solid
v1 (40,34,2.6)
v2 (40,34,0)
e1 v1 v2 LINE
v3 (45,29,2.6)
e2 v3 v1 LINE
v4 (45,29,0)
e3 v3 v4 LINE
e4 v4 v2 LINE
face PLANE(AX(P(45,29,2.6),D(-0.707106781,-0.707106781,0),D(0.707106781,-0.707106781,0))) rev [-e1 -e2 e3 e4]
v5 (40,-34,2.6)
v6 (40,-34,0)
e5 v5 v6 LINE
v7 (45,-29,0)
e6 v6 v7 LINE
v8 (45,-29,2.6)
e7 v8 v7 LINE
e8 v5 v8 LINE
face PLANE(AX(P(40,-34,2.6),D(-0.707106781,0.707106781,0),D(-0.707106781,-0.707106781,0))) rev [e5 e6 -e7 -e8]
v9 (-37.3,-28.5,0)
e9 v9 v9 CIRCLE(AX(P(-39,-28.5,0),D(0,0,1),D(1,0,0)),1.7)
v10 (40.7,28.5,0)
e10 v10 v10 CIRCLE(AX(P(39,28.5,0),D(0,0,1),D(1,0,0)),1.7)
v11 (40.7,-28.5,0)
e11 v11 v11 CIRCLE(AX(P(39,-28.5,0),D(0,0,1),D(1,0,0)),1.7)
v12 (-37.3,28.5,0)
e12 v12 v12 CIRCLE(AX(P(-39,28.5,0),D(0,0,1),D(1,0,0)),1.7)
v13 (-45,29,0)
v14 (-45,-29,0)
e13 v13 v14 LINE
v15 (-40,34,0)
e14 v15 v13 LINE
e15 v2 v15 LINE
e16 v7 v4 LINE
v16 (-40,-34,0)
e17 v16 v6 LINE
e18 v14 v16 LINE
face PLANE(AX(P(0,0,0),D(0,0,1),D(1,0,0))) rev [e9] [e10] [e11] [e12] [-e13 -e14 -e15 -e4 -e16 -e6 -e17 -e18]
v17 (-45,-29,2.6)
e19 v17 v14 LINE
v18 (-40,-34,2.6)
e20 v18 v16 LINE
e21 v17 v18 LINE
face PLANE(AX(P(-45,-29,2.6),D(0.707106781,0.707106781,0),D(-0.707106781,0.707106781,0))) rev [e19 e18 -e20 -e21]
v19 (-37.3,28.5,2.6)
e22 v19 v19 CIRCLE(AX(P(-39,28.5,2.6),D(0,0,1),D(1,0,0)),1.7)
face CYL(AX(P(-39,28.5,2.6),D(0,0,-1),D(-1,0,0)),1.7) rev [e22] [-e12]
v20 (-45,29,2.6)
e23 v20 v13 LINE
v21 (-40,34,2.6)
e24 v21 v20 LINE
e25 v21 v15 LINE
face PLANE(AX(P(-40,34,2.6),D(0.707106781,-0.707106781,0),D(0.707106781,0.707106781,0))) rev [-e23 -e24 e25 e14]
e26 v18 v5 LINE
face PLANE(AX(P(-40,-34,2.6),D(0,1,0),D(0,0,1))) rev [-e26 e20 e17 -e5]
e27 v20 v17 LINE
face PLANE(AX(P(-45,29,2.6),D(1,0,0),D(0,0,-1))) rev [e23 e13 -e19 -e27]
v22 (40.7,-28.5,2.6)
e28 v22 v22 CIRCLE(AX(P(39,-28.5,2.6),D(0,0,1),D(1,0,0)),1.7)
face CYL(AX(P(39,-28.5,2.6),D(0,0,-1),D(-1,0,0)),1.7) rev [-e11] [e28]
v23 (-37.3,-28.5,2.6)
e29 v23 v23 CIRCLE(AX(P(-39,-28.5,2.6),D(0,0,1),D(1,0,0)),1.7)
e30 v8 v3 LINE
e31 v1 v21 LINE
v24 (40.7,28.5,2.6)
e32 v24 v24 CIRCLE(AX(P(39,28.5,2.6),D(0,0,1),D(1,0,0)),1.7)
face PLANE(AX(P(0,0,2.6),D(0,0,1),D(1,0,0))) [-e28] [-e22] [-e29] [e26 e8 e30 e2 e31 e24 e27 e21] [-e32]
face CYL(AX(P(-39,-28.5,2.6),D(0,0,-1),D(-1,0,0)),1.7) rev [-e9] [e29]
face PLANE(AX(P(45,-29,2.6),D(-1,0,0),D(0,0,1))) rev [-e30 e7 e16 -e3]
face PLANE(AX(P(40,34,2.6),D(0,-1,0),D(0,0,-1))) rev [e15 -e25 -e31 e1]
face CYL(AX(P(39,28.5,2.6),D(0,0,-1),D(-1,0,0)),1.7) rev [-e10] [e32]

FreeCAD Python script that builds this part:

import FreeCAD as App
import Part
import Sketcher
from FreeCAD import Vector

doc = App.newDocument("Part")
body = doc.addObject("PartDesign::Body", "Body")

# Sketch on XY plane
sketch1 = body.newObject("Sketcher::SketchObject", "Sketch")
sketch1.AttachmentSupport = (doc.getObject("XY_Plane"), [""])
sketch1.MapMode = "FlatFace"
sketch1.addGeometry([
    Part.LineSegment(Vector(-40, -34, 0), Vector(40, -34, 0)),  # 0
    Part.LineSegment(Vector(40, -34, 0), Vector(45, -29, 0)),  # 1
    Part.LineSegment(Vector(45, -29, 0), Vector(45, 29, 0)),  # 2
    Part.LineSegment(Vector(45, 29, 0), Vector(40, 34, 0)),  # 3
    Part.LineSegment(Vector(40, 34, 0), Vector(-40, 34, 0)),  # 4
    Part.LineSegment(Vector(-40, 34, 0), Vector(-45, 29, 0)),  # 5
    Part.LineSegment(Vector(-45, 29, 0), Vector(-45, -29, 0)),  # 6
    Part.LineSegment(Vector(-45, -29, 0), Vector(-40, -34, 0)),  # 7
    Part.Circle(Vector(-39, -28.5, 0), Vector(0, 0, 1), 1.7),  # 8
    Part.Circle(Vector(39, -28.5, 0), Vector(0, 0, 1), 1.7),  # 9
    Part.Circle(Vector(-39, 28.5, 0), Vector(0, 0, 1), 1.7),  # 10
    Part.Circle(Vector(39, 28.5, 0), Vector(0, 0, 1), 1.7),  # 11
], False)
sketch1.addConstraint([
    Sketcher.Constraint("Coincident", 0, 2, 1, 1),
    Sketcher.Constraint("Coincident", 1, 2, 2, 1),
    Sketcher.Constraint("Coincident", 2, 2, 3, 1),
    Sketcher.Constraint("Coincident", 3, 2, 4, 1),
    Sketcher.Constraint("Coincident", 4, 2, 5, 1),
    Sketcher.Constraint("Coincident", 5, 2, 6, 1),
    Sketcher.Constraint("Coincident", 6, 2, 7, 1),
    Sketcher.Constraint("Coincident", 7, 2, 0, 1),
    Sketcher.Constraint("Horizontal", 0),
    Sketcher.Constraint("Vertical", 2),
    Sketcher.Constraint("Horizontal", 4),
    Sketcher.Constraint("Vertical", 6),
    Sketcher.Constraint("Equal", 8, 9),
    Sketcher.Constraint("Equal", 9, 10),
    Sketcher.Constraint("Equal", 10, 11),
    Sketcher.Constraint("Symmetric", 9, 3, 10, 3, -1, 1),
    Sketcher.Constraint("Symmetric", 8, 3, 11, 3, -1, 1),
    Sketcher.Constraint("Symmetric", 0, 2, 4, 2, -1, 1),
    Sketcher.Constraint("Symmetric", 1, 2, 5, 2, -1, 1),
    Sketcher.Constraint("Symmetric", 8, 3, 9, 3, -2),
    Sketcher.Constraint("Perpendicular", 1, 3),
    Sketcher.Constraint("Perpendicular", 5, 7),
    Sketcher.Constraint("Horizontal", 2, 2, 5, 2),
    Sketcher.Constraint("Horizontal", 1, 2, 6, 2),
    Sketcher.Constraint("Vertical", 0, 2, 3, 2),
    Sketcher.Constraint("Diameter", 8, 3.4),
    Sketcher.Constraint("DistanceX", 0, 1, 0, 2, 80.0),
    Sketcher.Constraint("DistanceY", 2, 1, 2, 2, 58.0),
    Sketcher.Constraint("DistanceX", 8, 3, -1, 1, 39.0),
    Sketcher.Constraint("DistanceY", 0, 2, -1, 1, 34.0),
    Sketcher.Constraint("DistanceY", 8, 3, 10, 3, 57.0),
])
pad1 = body.newObject("PartDesign::Pad", "Pad")
pad1.Profile = sketch1
pad1.Length = 2.6

doc.recompute()
